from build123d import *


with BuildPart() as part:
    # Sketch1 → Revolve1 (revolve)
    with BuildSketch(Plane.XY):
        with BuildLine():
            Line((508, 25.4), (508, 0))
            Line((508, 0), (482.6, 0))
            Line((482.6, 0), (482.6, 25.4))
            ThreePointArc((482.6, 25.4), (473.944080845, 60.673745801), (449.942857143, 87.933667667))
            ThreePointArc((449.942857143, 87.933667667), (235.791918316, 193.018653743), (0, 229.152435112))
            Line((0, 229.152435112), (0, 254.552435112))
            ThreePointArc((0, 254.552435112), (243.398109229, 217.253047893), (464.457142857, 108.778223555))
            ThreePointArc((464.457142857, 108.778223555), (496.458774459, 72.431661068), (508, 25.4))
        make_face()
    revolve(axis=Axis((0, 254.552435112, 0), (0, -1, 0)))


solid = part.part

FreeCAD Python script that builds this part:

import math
import FreeCAD as App
import Part
import Sketcher

V = App.Vector
Q = App.Units.Quantity

doc = App.newDocument("Part")
body = doc.addObject("PartDesign::Body", "Body")

sketch1 = body.newObject("Sketcher::SketchObject", "Sketch")
sketch1.AttachmentSupport = (doc.getObject("XY_Plane"), [""])
sketch1.MapMode = "FlatFace"
sketch1.addGeometry([
    Part.LineSegment(V(508, 0, 0), V(508, 25, 0)),
    Part.ArcOfCircle(Part.Circle(V(406, 25, 0), V(0, 0, 1), 102), math.radians(0), math.radians(55)),
    Part.ArcOfCircle(Part.Circle(V(0, -558, 0), V(0, 0, 1), 813), math.radians(55), math.radians(90)),
    Part.LineSegment(V(0, 255, 0), V(0, 229, 0)),
    Part.ArcOfCircle(Part.Circle(V(0, -558, 0), V(0, 0, 1), 787), math.radians(55), math.radians(90)),
    Part.ArcOfCircle(Part.Circle(V(406, 25, 0), V(0, 0, 1), 76), math.radians(0), math.radians(55)),
    Part.LineSegment(V(483, 25, 0), V(483, 0, 0)),
    Part.LineSegment(V(483, 0, 0), V(508, 0, 0)),
], False)
sketch1.addConstraint([
    Sketcher.Constraint("Tangent", 0, 2, 1, 1),
    Sketcher.Constraint("Tangent", 1, 2, 2, 1),
    Sketcher.Constraint("Coincident", 2, 2, 3, 1),
    Sketcher.Constraint("Coincident", 3, 2, 4, 2),
    Sketcher.Constraint("Tangent", 4, 1, 5, 2),
    Sketcher.Constraint("Tangent", 5, 1, 6, 1),
    Sketcher.Constraint("Coincident", 6, 2, 7, 1),
    Sketcher.Constraint("Coincident", 7, 2, 0, 1),
    Sketcher.Constraint("Vertical", 0),
    Sketcher.Constraint("Vertical", 3),
    Sketcher.Constraint("Vertical", 6),
    Sketcher.Constraint("Horizontal", 7),
    Sketcher.Constraint("Coincident", 4, 3, 2, 3),
    Sketcher.Constraint("Coincident", 5, 3, 1, 3),
    Sketcher.Constraint("PointOnObject", 2, 3, -2),
    Sketcher.Constraint("PointOnObject", 3, 2, -2),
    Sketcher.Constraint("PointOnObject", 6, 2, -1),
    Sketcher.Constraint("Equal", 7, 0),
    Sketcher.Constraint("Radius", 1, Q("4 in")),
    Sketcher.Constraint("Radius", 2, Q("32 in")),
    Sketcher.Constraint("Radius", 4, Q("31 in")),
    Sketcher.Constraint("DistanceX", -1, 1, 1, 3, Q("16 in")),
])
revolution = body.newObject("PartDesign::Revolution", "Revolution")
revolution.Profile = sketch1
revolution.ReferenceAxis = (sketch1, ["V_Axis"])
revolution.Angle = 360

doc.recompute()
